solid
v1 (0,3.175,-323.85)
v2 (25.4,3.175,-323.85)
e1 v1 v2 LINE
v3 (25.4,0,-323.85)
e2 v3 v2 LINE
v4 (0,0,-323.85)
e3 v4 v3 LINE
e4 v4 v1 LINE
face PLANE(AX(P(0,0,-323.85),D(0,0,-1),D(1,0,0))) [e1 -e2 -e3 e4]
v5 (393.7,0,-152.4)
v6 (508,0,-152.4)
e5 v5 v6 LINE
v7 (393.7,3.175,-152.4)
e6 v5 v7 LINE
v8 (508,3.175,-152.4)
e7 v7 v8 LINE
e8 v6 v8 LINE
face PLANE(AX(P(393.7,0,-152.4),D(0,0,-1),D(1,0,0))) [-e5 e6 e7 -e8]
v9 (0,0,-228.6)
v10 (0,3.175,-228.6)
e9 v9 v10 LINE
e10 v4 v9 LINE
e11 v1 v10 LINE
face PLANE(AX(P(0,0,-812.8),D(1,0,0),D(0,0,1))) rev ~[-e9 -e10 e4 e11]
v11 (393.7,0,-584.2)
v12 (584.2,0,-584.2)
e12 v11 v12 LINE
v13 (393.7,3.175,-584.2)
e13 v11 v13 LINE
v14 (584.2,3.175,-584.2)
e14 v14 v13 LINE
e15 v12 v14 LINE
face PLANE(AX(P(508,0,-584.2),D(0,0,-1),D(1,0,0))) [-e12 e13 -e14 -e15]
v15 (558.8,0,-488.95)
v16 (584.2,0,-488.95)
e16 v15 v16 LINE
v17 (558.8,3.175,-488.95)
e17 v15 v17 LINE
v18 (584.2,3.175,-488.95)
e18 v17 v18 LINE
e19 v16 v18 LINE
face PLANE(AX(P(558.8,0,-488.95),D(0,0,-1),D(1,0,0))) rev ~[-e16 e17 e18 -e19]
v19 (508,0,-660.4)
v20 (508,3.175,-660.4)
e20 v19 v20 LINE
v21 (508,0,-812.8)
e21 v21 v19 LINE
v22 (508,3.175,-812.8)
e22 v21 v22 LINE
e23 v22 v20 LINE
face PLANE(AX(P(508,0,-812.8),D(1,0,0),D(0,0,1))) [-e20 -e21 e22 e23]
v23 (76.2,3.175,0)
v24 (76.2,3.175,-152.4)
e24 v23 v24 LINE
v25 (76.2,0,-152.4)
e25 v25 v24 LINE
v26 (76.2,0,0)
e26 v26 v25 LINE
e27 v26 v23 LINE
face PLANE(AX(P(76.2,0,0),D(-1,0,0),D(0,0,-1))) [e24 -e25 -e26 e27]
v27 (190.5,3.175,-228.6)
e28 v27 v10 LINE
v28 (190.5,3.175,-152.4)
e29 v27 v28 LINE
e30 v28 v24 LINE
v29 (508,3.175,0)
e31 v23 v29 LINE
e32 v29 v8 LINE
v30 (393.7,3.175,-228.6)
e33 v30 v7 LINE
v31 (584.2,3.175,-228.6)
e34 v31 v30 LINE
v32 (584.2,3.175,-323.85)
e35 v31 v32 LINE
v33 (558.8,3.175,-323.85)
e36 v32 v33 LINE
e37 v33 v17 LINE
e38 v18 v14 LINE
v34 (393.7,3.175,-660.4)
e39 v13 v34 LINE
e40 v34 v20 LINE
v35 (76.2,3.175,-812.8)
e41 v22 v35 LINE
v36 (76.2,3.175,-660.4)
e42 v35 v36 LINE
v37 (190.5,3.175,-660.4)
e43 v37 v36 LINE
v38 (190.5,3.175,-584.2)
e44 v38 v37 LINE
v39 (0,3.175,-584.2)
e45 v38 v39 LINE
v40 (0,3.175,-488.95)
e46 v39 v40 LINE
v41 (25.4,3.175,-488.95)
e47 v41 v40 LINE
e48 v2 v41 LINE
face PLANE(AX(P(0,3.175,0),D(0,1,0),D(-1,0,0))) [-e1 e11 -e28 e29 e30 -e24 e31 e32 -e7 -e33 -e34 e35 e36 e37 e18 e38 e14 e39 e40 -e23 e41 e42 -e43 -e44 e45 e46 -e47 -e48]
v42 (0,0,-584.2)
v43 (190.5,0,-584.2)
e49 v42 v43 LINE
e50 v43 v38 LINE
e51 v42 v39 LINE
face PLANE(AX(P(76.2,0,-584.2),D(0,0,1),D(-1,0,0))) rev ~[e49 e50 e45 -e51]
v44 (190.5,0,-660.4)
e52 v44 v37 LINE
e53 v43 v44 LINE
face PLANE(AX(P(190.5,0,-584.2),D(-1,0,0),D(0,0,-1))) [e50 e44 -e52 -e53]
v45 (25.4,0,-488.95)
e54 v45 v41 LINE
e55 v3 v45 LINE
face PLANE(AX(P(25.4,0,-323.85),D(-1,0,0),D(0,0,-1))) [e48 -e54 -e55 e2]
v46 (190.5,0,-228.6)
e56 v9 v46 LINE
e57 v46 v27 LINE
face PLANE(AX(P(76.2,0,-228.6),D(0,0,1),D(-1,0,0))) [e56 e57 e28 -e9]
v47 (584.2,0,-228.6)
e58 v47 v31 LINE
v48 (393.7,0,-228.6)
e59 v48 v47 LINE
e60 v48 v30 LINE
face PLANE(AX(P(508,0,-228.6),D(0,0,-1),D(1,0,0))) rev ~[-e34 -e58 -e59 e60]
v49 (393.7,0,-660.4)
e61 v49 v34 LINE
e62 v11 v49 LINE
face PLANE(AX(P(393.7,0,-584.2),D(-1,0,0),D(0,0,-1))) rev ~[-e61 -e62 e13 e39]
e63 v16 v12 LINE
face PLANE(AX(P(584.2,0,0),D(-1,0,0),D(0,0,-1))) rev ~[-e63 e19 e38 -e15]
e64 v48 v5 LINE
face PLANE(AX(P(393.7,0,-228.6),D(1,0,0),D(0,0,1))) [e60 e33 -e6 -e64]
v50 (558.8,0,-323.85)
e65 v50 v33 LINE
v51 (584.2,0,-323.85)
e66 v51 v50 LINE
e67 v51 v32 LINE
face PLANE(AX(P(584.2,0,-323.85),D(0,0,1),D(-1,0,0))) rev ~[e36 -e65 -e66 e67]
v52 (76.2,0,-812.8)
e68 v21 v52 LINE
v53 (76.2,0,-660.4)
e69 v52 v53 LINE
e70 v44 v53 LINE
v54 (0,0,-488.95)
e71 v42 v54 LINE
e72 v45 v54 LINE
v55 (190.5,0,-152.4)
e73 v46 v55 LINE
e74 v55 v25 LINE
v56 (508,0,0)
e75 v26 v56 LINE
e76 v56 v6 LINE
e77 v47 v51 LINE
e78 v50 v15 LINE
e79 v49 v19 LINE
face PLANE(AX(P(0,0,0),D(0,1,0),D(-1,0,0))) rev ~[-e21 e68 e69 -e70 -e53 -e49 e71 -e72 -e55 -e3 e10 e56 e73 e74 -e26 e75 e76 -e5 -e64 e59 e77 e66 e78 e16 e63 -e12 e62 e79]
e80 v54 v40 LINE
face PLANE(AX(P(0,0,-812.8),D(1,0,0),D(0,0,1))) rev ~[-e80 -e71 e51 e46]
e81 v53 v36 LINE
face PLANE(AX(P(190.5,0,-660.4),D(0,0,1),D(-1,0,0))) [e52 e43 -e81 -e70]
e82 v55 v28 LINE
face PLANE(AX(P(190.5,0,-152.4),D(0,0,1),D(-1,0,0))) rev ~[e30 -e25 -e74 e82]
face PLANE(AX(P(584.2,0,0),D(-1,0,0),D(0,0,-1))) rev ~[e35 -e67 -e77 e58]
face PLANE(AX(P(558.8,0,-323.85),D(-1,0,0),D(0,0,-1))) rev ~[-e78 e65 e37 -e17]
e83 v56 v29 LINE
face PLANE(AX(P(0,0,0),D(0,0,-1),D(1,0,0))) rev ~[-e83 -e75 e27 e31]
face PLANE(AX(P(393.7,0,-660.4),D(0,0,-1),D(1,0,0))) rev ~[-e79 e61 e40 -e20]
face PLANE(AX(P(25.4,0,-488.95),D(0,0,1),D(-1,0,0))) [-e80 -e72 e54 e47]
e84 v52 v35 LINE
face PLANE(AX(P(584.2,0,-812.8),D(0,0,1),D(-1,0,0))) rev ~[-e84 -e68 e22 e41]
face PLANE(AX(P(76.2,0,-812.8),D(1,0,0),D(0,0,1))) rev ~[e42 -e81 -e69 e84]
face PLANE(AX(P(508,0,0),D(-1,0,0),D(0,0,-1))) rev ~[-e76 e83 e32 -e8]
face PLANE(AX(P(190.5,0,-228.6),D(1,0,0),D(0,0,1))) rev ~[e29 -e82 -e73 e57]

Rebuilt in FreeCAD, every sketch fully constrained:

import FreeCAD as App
import Part
import Sketcher

V = App.Vector
Q = App.Units.Quantity


def add_polygon(sketch, points):
    """Adds a closed chain of lines whose ends are joined by coincident constraints."""
    first, n = sketch.GeometryCount, len(points)
    for a, b in zip(points, points[1:] + points[:1]):
        sketch.addGeometry(Part.LineSegment(App.Vector(*a, 0), App.Vector(*b, 0)), False)
    for i in range(n):
        sketch.addConstraint(Sketcher.Constraint("Coincident", first + i, 2, first + (i + 1) % n, 1))

doc = App.newDocument("Part")
body = doc.addObject("PartDesign::Body", "Body")

sketch1 = doc.addObject("Sketcher::SketchObject", "Sketch")
body.addObject(sketch1)
sketch1.AttachmentSupport = (doc.XZ_Plane, [""])
sketch1.MapMode = "FlatFace"
add_polygon(sketch1, [(0, -813), (0, 0), (584, 0), (584, -813)])
sketch1.addConstraint([
    Sketcher.Constraint("Vertical", 0),
    Sketcher.Constraint("Horizontal", 1),
    Sketcher.Constraint("Vertical", 2),
    Sketcher.Constraint("Horizontal", 3),
    Sketcher.Constraint("Coincident", 0, 2, -1, 1),
    Sketcher.Constraint("DistanceX", 1, 1, 1, 2, Q("23 in")),
    Sketcher.Constraint("DistanceY", 0, 1, 0, 2, Q("32 in")),
])
pad1 = doc.addObject("PartDesign::Pad", "Pad")
body.addObject(pad1)
pad1.Profile = sketch1
pad1.Length = Q("0.125 in")
pad1.Reversed = True

sketch2 = doc.addObject("Sketcher::SketchObject", "Sketch001")
body.addObject(sketch2)
sketch2.AttachmentSupport = (doc.XZ_Plane, [""])
sketch2.MapMode = "FlatFace"
add_polygon(sketch2, [(76, 0), (0, 0), (0, -229), (190, -229), (190, -152), (76, -152)])
add_polygon(sketch2, [(584, 0), (508, 0), (508, -152), (394, -152), (394, -229), (584, -229)])
add_polygon(sketch2, [(25, -324), (0, -324), (0, -489), (25, -489)])
add_polygon(sketch2, [(0, -584), (0, -813), (76, -813), (76, -660), (190, -660), (190, -584)])
add_polygon(sketch2, [(584, -489), (584, -324), (559, -324), (559, -489)])
add_polygon(sketch2, [(584, -813), (584, -584), (394, -584), (394, -660), (508, -660), (508, -813)])
sketch2.addConstraint([
    Sketcher.Constraint("Horizontal", 0),
    Sketcher.Constraint("Vertical", 1),
    Sketcher.Constraint("Horizontal", 2),
    Sketcher.Constraint("Vertical", 3),
    Sketcher.Constraint("Horizontal", 4),
    Sketcher.Constraint("Vertical", 5),
    Sketcher.Constraint("Horizontal", 6),
    Sketcher.Constraint("Vertical", 7),
    Sketcher.Constraint("Horizontal", 8),
    Sketcher.Constraint("Vertical", 9),
    Sketcher.Constraint("Horizontal", 10),
    Sketcher.Constraint("Vertical", 11),
    Sketcher.Constraint("Horizontal", 12),
    Sketcher.Constraint("Vertical", 13),
    Sketcher.Constraint("Horizontal", 14),
    Sketcher.Constraint("Vertical", 15),
    Sketcher.Constraint("Vertical", 16),
    Sketcher.Constraint("Horizontal", 17),
    Sketcher.Constraint("Vertical", 18),
    Sketcher.Constraint("Horizontal", 19),
    Sketcher.Constraint("Vertical", 20),
    Sketcher.Constraint("Horizontal", 21),
    Sketcher.Constraint("Vertical", 22),
    Sketcher.Constraint("Horizontal", 23),
    Sketcher.Constraint("Vertical", 24),
    Sketcher.Constraint("Horizontal", 25),
    Sketcher.Constraint("Vertical", 26),
    Sketcher.Constraint("Horizontal", 27),
    Sketcher.Constraint("Vertical", 28),
    Sketcher.Constraint("Horizontal", 29),
    Sketcher.Constraint("Vertical", 30),
    Sketcher.Constraint("Horizontal", 31),
    Sketcher.Constraint("Coincident", 0, 2, -1, 1),
    Sketcher.Constraint("PointOnObject", 6, 2, -1),
    Sketcher.Constraint("PointOnObject", 12, 2, -2),
    Sketcher.Constraint("PointOnObject", 16, 2, -2),
    Sketcher.Constraint("Horizontal", 4, 2, 7, 2),
    Sketcher.Constraint("Horizontal", 2, 2, 9, 2),
    Sketcher.Constraint("Horizontal", 15, 2, 22, 2),
    Sketcher.Constraint("Horizontal", 14, 2, 24, 2),
    Sketcher.Constraint("Horizontal", 21, 2, 26, 2),
    Sketcher.Constraint("Horizontal", 19, 2, 28, 2),
    Sketcher.Constraint("Horizontal", 17, 2, 30, 2),
    Sketcher.Constraint("Vertical", 5, 2, 17, 2),
    Sketcher.Constraint("Vertical", 3, 2, 19, 2),
    Sketcher.Constraint("Vertical", 11, 2, 22, 2),
    Sketcher.Constraint("Vertical", 25, 2, 26, 2),
    Sketcher.Constraint("Vertical", 9, 2, 27, 2),
    Sketcher.Constraint("Vertical", 7, 2, 29, 2),
    Sketcher.Constraint("Equal", 0, 6),
    Sketcher.Constraint("Equal", 4, 8),
    Sketcher.Constraint("Equal", 14, 23),
    Sketcher.Constraint("Equal", 31, 3),
    Sketcher.Constraint("Equal", 11, 16),
    Sketcher.Constraint("Equal", 7, 18),
    Sketcher.Constraint("DistanceX", 0, 2, 0, 1, Q("3 in")),
    Sketcher.Constraint("DistanceX", 12, 2, 12, 1, Q("1 in")),
    Sketcher.Constraint("DistanceY", 1, 2, 1, 1, Q("9 in")),
    Sketcher.Constraint("DistanceX", 4, 2, 4, 1, Q("4.5 in")),
    Sketcher.Constraint("DistanceY", 13, 2, 13, 1, Q("6.5 in")),
    Sketcher.Constraint("DistanceY", 12, 2, -1, 1, Q("12.75 in")),
    Sketcher.Constraint("DistanceY", 16, 2, 13, 2, Q("12.75 in")),
    Sketcher.Constraint("DistanceX", -1, 1, 6, 2, Q("20 in")),
])
pocket1 = doc.addObject("PartDesign::Pocket", "Pocket")
body.addObject(pocket1)
pocket1.Profile = sketch2
pocket1.Length = Q("0.125 in")

doc.recompute()
